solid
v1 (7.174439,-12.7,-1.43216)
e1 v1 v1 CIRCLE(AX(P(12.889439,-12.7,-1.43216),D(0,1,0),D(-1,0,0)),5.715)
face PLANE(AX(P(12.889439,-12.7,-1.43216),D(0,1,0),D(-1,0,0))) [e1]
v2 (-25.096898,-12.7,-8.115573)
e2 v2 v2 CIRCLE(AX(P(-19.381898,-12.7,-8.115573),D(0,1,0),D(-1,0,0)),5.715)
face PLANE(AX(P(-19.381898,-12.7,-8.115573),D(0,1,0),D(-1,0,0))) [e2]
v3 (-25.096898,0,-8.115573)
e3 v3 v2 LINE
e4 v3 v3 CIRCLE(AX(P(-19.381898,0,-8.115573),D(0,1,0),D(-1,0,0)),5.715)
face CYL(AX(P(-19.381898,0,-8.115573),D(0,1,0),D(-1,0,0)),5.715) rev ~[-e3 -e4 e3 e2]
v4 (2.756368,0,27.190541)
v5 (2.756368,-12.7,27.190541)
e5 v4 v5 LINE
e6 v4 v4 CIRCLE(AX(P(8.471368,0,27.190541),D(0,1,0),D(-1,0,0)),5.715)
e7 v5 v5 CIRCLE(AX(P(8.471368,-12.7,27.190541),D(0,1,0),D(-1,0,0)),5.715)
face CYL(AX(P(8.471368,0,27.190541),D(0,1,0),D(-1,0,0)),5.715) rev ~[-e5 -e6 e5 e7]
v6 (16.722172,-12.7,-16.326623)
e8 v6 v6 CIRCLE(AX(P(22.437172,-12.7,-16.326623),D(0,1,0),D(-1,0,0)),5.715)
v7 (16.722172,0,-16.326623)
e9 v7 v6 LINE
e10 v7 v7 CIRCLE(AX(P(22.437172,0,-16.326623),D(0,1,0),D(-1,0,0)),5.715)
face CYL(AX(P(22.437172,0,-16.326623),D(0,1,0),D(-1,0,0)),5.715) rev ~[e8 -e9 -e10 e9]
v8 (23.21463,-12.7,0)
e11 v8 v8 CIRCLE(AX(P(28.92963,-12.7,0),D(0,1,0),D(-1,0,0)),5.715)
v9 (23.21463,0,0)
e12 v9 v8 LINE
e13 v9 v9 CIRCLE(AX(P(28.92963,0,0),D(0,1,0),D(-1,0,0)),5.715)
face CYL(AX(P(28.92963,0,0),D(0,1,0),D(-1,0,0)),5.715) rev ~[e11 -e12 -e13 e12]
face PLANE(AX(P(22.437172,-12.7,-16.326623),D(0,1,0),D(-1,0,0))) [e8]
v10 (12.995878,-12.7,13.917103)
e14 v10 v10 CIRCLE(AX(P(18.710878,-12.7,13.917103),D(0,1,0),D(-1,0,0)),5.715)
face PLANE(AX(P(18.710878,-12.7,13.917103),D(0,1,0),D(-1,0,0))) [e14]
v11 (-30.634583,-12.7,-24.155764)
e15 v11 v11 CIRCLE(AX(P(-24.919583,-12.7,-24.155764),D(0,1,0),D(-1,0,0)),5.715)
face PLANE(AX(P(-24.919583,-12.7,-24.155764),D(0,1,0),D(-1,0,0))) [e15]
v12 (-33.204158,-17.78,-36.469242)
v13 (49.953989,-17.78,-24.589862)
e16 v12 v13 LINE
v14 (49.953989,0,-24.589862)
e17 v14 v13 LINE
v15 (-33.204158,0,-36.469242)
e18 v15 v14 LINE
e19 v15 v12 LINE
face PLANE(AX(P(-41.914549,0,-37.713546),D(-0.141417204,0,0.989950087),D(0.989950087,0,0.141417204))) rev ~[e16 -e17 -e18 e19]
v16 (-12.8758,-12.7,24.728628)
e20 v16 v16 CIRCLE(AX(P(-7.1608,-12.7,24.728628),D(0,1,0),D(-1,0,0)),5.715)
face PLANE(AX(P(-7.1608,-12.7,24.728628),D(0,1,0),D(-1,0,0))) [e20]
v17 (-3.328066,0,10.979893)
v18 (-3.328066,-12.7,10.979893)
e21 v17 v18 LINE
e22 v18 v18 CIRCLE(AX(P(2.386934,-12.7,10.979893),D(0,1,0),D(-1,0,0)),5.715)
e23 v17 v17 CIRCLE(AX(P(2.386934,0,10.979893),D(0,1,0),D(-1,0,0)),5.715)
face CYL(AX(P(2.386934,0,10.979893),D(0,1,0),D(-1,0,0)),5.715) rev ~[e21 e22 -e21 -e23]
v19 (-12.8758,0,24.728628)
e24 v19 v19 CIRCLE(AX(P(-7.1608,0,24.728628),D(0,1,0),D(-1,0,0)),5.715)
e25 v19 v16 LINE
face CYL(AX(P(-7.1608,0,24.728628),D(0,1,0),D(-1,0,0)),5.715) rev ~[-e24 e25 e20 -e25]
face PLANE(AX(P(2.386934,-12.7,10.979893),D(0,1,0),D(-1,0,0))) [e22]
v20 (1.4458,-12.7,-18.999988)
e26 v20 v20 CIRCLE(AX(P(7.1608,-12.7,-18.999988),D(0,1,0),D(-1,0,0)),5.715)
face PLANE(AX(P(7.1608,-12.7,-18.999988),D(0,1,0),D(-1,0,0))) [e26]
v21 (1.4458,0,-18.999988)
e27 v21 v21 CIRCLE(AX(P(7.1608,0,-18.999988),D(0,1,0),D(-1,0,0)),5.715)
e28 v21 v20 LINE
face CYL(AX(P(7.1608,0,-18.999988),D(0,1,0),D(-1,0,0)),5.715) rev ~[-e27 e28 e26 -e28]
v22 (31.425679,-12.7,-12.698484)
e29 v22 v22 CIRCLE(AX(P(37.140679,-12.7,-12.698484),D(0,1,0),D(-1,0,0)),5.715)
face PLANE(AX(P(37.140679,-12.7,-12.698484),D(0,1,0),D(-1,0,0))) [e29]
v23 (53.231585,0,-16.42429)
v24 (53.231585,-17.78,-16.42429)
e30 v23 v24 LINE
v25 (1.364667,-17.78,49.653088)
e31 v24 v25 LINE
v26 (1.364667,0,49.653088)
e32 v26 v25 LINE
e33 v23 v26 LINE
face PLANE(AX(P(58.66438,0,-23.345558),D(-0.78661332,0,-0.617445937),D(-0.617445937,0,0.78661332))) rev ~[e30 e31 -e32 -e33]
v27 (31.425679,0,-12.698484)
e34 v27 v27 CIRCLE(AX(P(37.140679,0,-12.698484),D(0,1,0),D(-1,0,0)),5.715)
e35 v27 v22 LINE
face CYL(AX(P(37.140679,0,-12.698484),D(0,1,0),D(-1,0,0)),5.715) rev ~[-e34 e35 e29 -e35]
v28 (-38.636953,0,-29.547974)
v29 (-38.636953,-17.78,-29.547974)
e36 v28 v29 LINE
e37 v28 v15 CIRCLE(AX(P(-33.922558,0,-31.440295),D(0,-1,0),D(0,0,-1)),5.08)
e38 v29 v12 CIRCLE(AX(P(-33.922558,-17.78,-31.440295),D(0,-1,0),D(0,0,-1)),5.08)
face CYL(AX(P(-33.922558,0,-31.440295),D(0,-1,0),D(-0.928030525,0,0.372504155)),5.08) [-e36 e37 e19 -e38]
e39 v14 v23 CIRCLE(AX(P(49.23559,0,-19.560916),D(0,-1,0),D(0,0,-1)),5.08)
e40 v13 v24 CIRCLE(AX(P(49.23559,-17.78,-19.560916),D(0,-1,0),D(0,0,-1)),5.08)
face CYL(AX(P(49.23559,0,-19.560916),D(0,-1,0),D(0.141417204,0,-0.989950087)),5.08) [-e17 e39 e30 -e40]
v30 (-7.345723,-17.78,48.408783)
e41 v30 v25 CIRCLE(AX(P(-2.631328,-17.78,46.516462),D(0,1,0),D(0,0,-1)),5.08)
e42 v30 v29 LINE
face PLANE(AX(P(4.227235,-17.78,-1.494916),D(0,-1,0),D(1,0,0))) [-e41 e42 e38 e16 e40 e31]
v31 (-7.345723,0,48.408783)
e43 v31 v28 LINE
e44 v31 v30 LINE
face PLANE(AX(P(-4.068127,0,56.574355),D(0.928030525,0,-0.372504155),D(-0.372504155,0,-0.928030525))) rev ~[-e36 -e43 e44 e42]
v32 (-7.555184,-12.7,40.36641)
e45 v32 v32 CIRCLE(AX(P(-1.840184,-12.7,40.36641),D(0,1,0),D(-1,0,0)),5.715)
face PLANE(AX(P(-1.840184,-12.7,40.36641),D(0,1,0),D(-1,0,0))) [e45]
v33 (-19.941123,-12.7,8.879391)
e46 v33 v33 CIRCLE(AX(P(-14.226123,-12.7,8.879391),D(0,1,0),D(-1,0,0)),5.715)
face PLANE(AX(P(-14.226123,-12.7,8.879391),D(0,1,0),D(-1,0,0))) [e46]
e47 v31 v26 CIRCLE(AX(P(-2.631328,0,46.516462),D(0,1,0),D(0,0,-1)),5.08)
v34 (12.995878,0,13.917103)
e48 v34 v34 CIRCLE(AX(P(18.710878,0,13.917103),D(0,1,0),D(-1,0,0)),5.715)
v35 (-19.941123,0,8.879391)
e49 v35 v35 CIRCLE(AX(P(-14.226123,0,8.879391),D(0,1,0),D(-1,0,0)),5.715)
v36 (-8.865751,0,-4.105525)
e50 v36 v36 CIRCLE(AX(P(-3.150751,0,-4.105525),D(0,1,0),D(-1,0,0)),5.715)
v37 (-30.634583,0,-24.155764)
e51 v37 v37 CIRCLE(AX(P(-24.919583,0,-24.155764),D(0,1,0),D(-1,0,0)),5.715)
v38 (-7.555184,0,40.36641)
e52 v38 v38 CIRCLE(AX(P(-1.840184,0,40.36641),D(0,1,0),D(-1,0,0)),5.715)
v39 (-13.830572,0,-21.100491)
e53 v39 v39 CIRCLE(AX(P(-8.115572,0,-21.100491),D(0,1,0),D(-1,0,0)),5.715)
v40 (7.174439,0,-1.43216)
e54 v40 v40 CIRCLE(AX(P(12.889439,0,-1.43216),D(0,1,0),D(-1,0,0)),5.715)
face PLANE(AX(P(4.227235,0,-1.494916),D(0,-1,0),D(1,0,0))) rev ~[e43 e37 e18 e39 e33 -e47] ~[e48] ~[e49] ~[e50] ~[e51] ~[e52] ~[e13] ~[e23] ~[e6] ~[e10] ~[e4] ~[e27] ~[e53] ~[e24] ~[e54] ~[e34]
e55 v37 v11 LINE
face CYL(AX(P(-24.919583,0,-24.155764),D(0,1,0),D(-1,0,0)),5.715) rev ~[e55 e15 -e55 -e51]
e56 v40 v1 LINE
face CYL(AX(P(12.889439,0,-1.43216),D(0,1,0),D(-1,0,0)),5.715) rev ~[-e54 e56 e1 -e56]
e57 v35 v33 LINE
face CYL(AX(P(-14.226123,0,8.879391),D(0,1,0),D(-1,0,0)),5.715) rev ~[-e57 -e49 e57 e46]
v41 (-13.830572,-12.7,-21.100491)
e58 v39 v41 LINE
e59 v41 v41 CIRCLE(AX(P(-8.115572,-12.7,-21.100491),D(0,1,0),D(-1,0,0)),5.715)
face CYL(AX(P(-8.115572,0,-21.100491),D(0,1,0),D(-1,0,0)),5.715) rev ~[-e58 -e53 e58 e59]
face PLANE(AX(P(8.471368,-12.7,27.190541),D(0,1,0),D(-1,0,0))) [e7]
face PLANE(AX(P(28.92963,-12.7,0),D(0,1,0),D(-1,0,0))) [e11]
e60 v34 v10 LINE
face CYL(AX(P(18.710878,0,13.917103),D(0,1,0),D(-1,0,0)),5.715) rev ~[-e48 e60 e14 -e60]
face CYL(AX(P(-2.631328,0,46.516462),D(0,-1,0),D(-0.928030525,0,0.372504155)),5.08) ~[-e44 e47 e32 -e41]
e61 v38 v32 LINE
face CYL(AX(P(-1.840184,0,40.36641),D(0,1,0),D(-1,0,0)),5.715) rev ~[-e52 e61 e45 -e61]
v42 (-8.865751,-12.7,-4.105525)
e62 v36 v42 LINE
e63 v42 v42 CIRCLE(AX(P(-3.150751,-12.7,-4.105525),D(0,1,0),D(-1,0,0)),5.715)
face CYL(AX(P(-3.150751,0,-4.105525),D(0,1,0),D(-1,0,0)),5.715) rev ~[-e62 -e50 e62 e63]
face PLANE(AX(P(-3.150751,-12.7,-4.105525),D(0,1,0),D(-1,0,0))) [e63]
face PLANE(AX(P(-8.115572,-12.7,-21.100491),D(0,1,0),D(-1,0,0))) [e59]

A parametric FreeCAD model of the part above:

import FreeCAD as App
import Part
import Sketcher

V = App.Vector
Q = App.Units.Quantity


def edges_at(feature, points):
    """Names of the edges that pass closest to the given points."""
    edges = feature.Shape.Edges
    near = lambda p: min(range(len(edges)), key=lambda i: edges[i].distToShape(Part.Vertex(*p))[0])
    return sorted({f"Edge{near(p) + 1}" for p in points})

doc = App.newDocument("Part")
body = doc.addObject("PartDesign::Body", "Body")

# Sketch on XZ plane
sketch1 = doc.addObject("Sketcher::SketchObject", "Sketch")
body.addObject(sketch1)
sketch1.AttachmentSupport = (doc.XZ_Plane, [""])
sketch1.MapMode = "FlatFace"
sketch1.addGeometry([
    Part.LineSegment(V(-4.068127, 56.574355, 0), V(-41.914549, -37.713546, 0)),
    Part.LineSegment(V(-41.914549, -37.713546, 0), V(58.66438, -23.345558, 0)),
    Part.LineSegment(V(58.66438, -23.345558, 0), V(-4.068127, 56.574355, 0)),
], False)
sketch1.addConstraint([
    Sketcher.Constraint("Coincident", 0, 2, 1, 1),
    Sketcher.Constraint("Coincident", 1, 2, 2, 1),
    Sketcher.Constraint("Coincident", 2, 2, 0, 1),
    Sketcher.Constraint("Equal", 0, 1),
    Sketcher.Constraint("Equal", 1, 2),
    Sketcher.Constraint("Distance", 0, Q("4 in")),
    Sketcher.Constraint("DistanceY", 0, 2, 2, 2, Q("94.287901 mm")),
    Sketcher.Constraint("DistanceX", 0, 2, -1, 1, Q("41.914549 mm")),
    Sketcher.Constraint("DistanceY", 1, 2, -1, 1, Q("23.345558 mm")),
])
pad1 = doc.addObject("PartDesign::Pad", "Pad")
body.addObject(pad1)
pad1.Profile = sketch1
pad1.Length = Q("0.7 in")
doc.recompute()

fillet = doc.addObject("PartDesign::Fillet", "Fillet")
body.addObject(fillet)
fillet.Base = (pad1, edges_at(pad1, [(-4.068, -8.89, 56.574), (58.664, -8.89, -23.346), (-41.915, -8.89, -37.714)]))
fillet.Radius = Q("0.2 in")

# Sketch on XZ plane
sketch2 = doc.addObject("Sketcher::SketchObject", "Sketch001")
body.addObject(sketch2)
sketch2.AttachmentSupport = (doc.XZ_Plane, [""])
sketch2.MapMode = "FlatFace"
sketch2.addGeometry([
    Part.Circle(V(-1.840184, 40.36641, 0), V(0, 0, 1), 5.715),  # 0
    Part.Circle(V(8.471368, 27.190541, 0), V(0, 0, 1), 5.715),  # 1
    Part.Circle(V(-7.1608, 24.728628, 0), V(0, 0, 1), 5.715),  # 2
    Part.Circle(V(18.710878, 13.917103, 0), V(0, 0, 1), 5.715),  # 3
    Part.Circle(V(2.386934, 10.979893, 0), V(0, 0, 1), 5.715),  # 4
    Part.Circle(V(-14.226123, 8.879391, 0), V(0, 0, 1), 5.715),  # 5
    Part.Circle(V(12.889439, -1.43216, 0), V(0, 0, 1), 5.715),  # 6
    Part.Circle(V(-3.150751, -4.105525, 0), V(0, 0, 1), 5.715),  # 7
    Part.Circle(V(-19.381898, -8.115573, 0), V(0, 0, 1), 5.715),  # 8
    Part.Circle(V(22.437172, -16.326623, 0), V(0, 0, 1), 5.715),  # 9
    Part.Circle(V(7.1608, -18.999988, 0), V(0, 0, 1), 5.715),  # 10
    Part.Circle(V(-8.115572, -21.100491, 0), V(0, 0, 1), 5.715),  # 11
    Part.Circle(V(28.92963, 0, 0), V(0, 0, 1), 5.715),  # 12
    Part.Circle(V(37.140679, -12.698484, 0), V(0, 0, 1), 5.715),  # 13
    Part.Circle(V(-24.919583, -24.155764, 0), V(0, 0, 1), 5.715),  # 14
], False)
sketch2.addConstraint([
    Sketcher.Constraint("Equal", 0, 1),
    Sketcher.Constraint("Equal", 1, 2),
    Sketcher.Constraint("Equal", 2, 3),
    Sketcher.Constraint("Equal", 3, 4),
    Sketcher.Constraint("Equal", 4, 5),
    Sketcher.Constraint("Equal", 5, 6),
    Sketcher.Constraint("Equal", 6, 7),
    Sketcher.Constraint("Equal", 7, 8),
    Sketcher.Constraint("Equal", 8, 9),
    Sketcher.Constraint("Equal", 9, 10),
    Sketcher.Constraint("Equal", 10, 11),
    Sketcher.Constraint("Equal", 11, 12),
    Sketcher.Constraint("Equal", 12, 13),
    Sketcher.Constraint("Equal", 13, 14),
    Sketcher.Constraint("PointOnObject", 12, 3, -1),
    Sketcher.Constraint("Diameter", 0, Q("0.45 in")),
    Sketcher.Constraint("DistanceX", 2, 3, -1, 1, Q("7.1608 mm")),
    Sketcher.Constraint("DistanceX", -1, 1, 10, 3, Q("7.1608 mm")),
    Sketcher.Constraint("DistanceX", 5, 3, 3, 3, Q("32.937001 mm")),
    Sketcher.Constraint("DistanceY", 6, 3, 1, 3, Q("28.622701 mm")),
    Sketcher.Constraint("DistanceY", 8, 3, 2, 3, Q("32.844201 mm")),
    Sketcher.Constraint("DistanceY", 9, 3, 7, 3, Q("12.221098 mm")),
    Sketcher.Constraint("DistanceX", 8, 3, 10, 3, Q("26.542698 mm")),
    Sketcher.Constraint("DistanceX", 3, 3, 13, 3, Q("18.429801 mm")),
    Sketcher.Constraint("DistanceY", -1, 1, 0, 3, Q("40.36641 mm")),
    Sketcher.Constraint("DistanceY", -1, 1, 1, 3, Q("27.190541 mm")),
    Sketcher.Constraint("DistanceY", -1, 1, 2, 3, Q("24.728628 mm")),
    Sketcher.Constraint("DistanceX", -1, 1, 3, 3, Q("18.710878 mm")),
    Sketcher.Constraint("DistanceY", -1, 1, 5, 3, Q("8.879391 mm")),
    Sketcher.Constraint("DistanceX", -1, 1, 6, 3, Q("12.889439 mm")),
    Sketcher.Constraint("DistanceX", 7, 3, -1, 1, Q("3.150751 mm")),
    Sketcher.Constraint("DistanceY", 11, 3, -1, 1, Q("21.100491 mm")),
    Sketcher.Constraint("DistanceX", -1, 1, 12, 3, Q("28.92963 mm")),
    Sketcher.Constraint("DistanceX", 1, 3, 3, 3, Q("10.23951 mm")),
    Sketcher.Constraint("DistanceY", 4, 3, 3, 3, Q("2.93721 mm")),
    Sketcher.Constraint("DistanceY", 5, 3, 3, 3, Q("5.037712 mm")),
    Sketcher.Constraint("DistanceX", 5, 3, 0, 3, Q("12.385939 mm")),
    Sketcher.Constraint("DistanceY", 7, 3, 4, 3, Q("15.085418 mm")),
    Sketcher.Constraint("DistanceX", 8, 3, 4, 3, Q("21.768832 mm")),
    Sketcher.Constraint("DistanceX", 4, 3, 9, 3, Q("20.050238 mm")),
    Sketcher.Constraint("DistanceY", 10, 3, 4, 3, Q("29.979881 mm")),
    Sketcher.Constraint("DistanceX", 11, 3, 7, 3, Q("4.964821 mm")),
    Sketcher.Constraint("DistanceY", 9, 3, 13, 3, Q("3.628139 mm")),
    Sketcher.Constraint("DistanceY", 14, 3, 8, 3, Q("16.040191 mm")),
    Sketcher.Constraint("DistanceX", 14, 3, 11, 3, Q("16.804011 mm")),
])
pocket1 = doc.addObject("PartDesign::Pocket", "Pocket")
body.addObject(pocket1)
pocket1.Profile = sketch2
pocket1.Length = Q("0.5 in")
pocket1.Reversed = True

doc.recompute()
